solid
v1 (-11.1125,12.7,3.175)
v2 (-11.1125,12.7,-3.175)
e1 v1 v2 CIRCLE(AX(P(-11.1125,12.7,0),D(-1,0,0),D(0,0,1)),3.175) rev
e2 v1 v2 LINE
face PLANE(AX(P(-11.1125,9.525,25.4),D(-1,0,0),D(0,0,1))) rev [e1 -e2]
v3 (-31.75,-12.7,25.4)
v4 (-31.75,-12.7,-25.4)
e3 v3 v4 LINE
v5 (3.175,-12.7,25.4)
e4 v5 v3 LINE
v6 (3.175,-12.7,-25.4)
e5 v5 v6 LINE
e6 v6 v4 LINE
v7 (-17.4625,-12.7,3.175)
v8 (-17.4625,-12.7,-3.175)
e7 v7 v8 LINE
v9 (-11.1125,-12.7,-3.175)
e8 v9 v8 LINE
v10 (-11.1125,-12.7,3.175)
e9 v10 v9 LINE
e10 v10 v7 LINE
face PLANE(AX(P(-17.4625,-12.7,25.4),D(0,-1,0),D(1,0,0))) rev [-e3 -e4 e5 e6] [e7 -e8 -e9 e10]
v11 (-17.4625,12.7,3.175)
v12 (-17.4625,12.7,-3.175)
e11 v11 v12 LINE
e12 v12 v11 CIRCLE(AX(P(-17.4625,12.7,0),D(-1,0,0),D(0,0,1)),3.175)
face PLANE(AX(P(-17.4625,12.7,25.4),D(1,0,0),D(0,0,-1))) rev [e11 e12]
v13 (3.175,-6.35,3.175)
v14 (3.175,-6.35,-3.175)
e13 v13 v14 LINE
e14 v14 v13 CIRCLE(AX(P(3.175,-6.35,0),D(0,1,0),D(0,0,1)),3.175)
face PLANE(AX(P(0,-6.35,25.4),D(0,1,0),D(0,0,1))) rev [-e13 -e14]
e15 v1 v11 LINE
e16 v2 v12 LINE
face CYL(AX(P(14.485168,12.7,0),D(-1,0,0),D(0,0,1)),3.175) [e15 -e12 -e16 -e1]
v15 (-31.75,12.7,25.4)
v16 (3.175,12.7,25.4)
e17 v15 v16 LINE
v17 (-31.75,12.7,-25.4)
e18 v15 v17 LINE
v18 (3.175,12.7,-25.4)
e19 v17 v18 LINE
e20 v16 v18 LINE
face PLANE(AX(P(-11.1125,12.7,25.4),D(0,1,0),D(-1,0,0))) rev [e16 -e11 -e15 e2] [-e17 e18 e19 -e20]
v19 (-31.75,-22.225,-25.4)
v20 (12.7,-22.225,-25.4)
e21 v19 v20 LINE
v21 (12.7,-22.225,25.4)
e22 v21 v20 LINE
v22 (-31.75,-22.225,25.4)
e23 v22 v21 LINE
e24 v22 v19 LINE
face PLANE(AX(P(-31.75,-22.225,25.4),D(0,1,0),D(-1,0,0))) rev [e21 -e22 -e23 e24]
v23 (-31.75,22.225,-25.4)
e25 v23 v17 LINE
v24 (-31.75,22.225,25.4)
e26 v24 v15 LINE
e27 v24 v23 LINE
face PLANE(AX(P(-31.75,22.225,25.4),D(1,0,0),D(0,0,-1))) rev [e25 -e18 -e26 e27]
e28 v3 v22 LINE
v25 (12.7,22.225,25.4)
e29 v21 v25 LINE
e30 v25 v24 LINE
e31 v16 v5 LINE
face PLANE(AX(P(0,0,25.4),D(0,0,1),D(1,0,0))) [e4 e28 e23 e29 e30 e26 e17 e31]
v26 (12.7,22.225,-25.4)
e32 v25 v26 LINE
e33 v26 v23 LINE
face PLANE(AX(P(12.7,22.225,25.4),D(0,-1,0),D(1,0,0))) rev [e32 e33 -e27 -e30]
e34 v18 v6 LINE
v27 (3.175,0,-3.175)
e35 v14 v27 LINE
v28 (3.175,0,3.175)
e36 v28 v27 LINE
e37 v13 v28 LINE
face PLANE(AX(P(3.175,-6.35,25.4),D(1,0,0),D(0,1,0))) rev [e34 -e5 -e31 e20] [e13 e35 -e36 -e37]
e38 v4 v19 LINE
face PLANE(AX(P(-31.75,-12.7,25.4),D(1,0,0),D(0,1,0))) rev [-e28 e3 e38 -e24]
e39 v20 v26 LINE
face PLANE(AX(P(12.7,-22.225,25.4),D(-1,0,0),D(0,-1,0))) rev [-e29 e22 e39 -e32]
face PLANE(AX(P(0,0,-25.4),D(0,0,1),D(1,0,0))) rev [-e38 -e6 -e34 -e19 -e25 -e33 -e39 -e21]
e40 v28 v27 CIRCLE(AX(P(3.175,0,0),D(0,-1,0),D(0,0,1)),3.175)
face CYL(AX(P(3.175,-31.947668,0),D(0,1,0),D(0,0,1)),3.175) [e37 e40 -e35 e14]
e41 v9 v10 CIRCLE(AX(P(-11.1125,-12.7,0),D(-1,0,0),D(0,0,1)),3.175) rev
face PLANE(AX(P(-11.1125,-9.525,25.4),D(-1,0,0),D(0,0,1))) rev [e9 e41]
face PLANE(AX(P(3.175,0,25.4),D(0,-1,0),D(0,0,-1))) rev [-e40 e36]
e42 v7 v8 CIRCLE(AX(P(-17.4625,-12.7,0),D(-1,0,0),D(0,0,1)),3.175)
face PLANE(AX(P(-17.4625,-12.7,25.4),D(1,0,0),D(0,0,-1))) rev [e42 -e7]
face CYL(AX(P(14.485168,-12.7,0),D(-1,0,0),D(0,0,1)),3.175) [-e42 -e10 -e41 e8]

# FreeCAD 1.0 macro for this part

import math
import FreeCAD as App
import Part
import Sketcher

V = App.Vector
Q = App.Units.Quantity

doc = App.newDocument("Part")
body = doc.addObject("PartDesign::Body", "Body")

# Sketch on XY plane
sketch1 = body.newObject("Sketcher::SketchObject", "Sketch")
sketch1.AttachmentSupport = (doc.getObject("XY_Plane"), [""])
sketch1.MapMode = "FlatFace"
sketch1.addGeometry(Part.LineSegment(V(-31.75, 22.225, 0), V(-31.75, 12.7, 0)), False)
sketch1.addGeometry(Part.LineSegment(V(-31.75, 12.7, 0), V(-17.4625, 12.7, 0)), False)
sketch1.addGeometry(Part.LineSegment(V(-17.4625, 12.7, 0), V(-17.4625, 9.525, 0)), False)
sketch1.addGeometry(Part.LineSegment(V(-17.4625, 9.525, 0), V(-11.1125, 9.525, 0)), False)
sketch1.addGeometry(Part.LineSegment(V(-11.1125, 9.525, 0), V(-11.1125, 12.7, 0)), False)
sketch1.addGeometry(Part.LineSegment(V(-11.1125, 12.7, 0), V(3.175, 12.7, 0)), False)
sketch1.addGeometry(Part.LineSegment(V(3.175, 12.7, 0), V(3.175, 0, 0)), False)
sketch1.addGeometry(Part.LineSegment(V(3.175, 0, 0), V(0, 0, 0)), False)
sketch1.addGeometry(Part.LineSegment(V(0, 0, 0), V(0, -6.35, 0)), False)
sketch1.addGeometry(Part.LineSegment(V(0, -6.35, 0), V(3.175, -6.35, 0)), False)
sketch1.addGeometry(Part.LineSegment(V(3.175, -6.35, 0), V(3.175, -12.7, 0)), False)
sketch1.addGeometry(Part.LineSegment(V(3.175, -12.7, 0), V(-11.1125, -12.7, 0)), False)
sketch1.addGeometry(Part.LineSegment(V(-11.1125, -12.7, 0), V(-11.1125, -9.525, 0)), False)
sketch1.addGeometry(Part.LineSegment(V(-11.1125, -9.525, 0), V(-17.4625, -9.525, 0)), False)
sketch1.addGeometry(Part.LineSegment(V(-17.4625, -9.525, 0), V(-17.4625, -12.7, 0)), False)
sketch1.addGeometry(Part.LineSegment(V(-17.4625, -12.7, 0), V(-31.75, -12.7, 0)), False)
sketch1.addGeometry(Part.LineSegment(V(-31.75, -12.7, 0), V(-31.75, -22.225, 0)), False)
sketch1.addGeometry(Part.LineSegment(V(-31.75, -22.225, 0), V(12.7, -22.225, 0)), False)
sketch1.addGeometry(Part.LineSegment(V(12.7, -22.225, 0), V(12.7, 22.225, 0)), False)
sketch1.addGeometry(Part.LineSegment(V(12.7, 22.225, 0), V(-31.75, 22.225, 0)), False)
sketch1.addConstraint(Sketcher.Constraint("Coincident", 0, 2, 1, 1))
sketch1.addConstraint(Sketcher.Constraint("Coincident", 1, 2, 2, 1))
sketch1.addConstraint(Sketcher.Constraint("Coincident", 2, 2, 3, 1))
sketch1.addConstraint(Sketcher.Constraint("Coincident", 3, 2, 4, 1))
sketch1.addConstraint(Sketcher.Constraint("Coincident", 4, 2, 5, 1))
sketch1.addConstraint(Sketcher.Constraint("Coincident", 5, 2, 6, 1))
sketch1.addConstraint(Sketcher.Constraint("Coincident", 6, 2, 7, 1))
sketch1.addConstraint(Sketcher.Constraint("Coincident", 7, 2, 8, 1))
sketch1.addConstraint(Sketcher.Constraint("Coincident", 8, 2, 9, 1))
sketch1.addConstraint(Sketcher.Constraint("Coincident", 9, 2, 10, 1))
sketch1.addConstraint(Sketcher.Constraint("Coincident", 10, 2, 11, 1))
sketch1.addConstraint(Sketcher.Constraint("Coincident", 11, 2, 12, 1))
sketch1.addConstraint(Sketcher.Constraint("Coincident", 12, 2, 13, 1))
sketch1.addConstraint(Sketcher.Constraint("Coincident", 13, 2, 14, 1))
sketch1.addConstraint(Sketcher.Constraint("Coincident", 14, 2, 15, 1))
sketch1.addConstraint(Sketcher.Constraint("Coincident", 15, 2, 16, 1))
sketch1.addConstraint(Sketcher.Constraint("Coincident", 16, 2, 17, 1))
sketch1.addConstraint(Sketcher.Constraint("Coincident", 17, 2, 18, 1))
sketch1.addConstraint(Sketcher.Constraint("Coincident", 18, 2, 19, 1))
sketch1.addConstraint(Sketcher.Constraint("Coincident", 19, 2, 0, 1))
sketch1.addConstraint(Sketcher.Constraint("Vertical", 0))
sketch1.addConstraint(Sketcher.Constraint("Horizontal", 1))
sketch1.addConstraint(Sketcher.Constraint("Vertical", 2))
sketch1.addConstraint(Sketcher.Constraint("Horizontal", 3))
sketch1.addConstraint(Sketcher.Constraint("Vertical", 4))
sketch1.addConstraint(Sketcher.Constraint("Horizontal", 5))
sketch1.addConstraint(Sketcher.Constraint("Vertical", 6))
sketch1.addConstraint(Sketcher.Constraint("Horizontal", 7))
sketch1.addConstraint(Sketcher.Constraint("Vertical", 8))
sketch1.addConstraint(Sketcher.Constraint("Horizontal", 9))
sketch1.addConstraint(Sketcher.Constraint("Vertical", 10))
sketch1.addConstraint(Sketcher.Constraint("Horizontal", 11))
sketch1.addConstraint(Sketcher.Constraint("Vertical", 12))
sketch1.addConstraint(Sketcher.Constraint("Horizontal", 13))
sketch1.addConstraint(Sketcher.Constraint("Vertical", 14))
sketch1.addConstraint(Sketcher.Constraint("Horizontal", 15))
sketch1.addConstraint(Sketcher.Constraint("Vertical", 16))
sketch1.addConstraint(Sketcher.Constraint("Horizontal", 17))
sketch1.addConstraint(Sketcher.Constraint("Vertical", 18))
sketch1.addConstraint(Sketcher.Constraint("Horizontal", 19))
sketch1.addConstraint(Sketcher.Constraint("Coincident", 7, 2, -1, 1))
sketch1.addConstraint(Sketcher.Constraint("Symmetric", 5, 2, 10, 2, -1))
sketch1.addConstraint(Sketcher.Constraint("Symmetric", 3, 2, 12, 2, -1))
sketch1.addConstraint(Sketcher.Constraint("Symmetric", 1, 2, 14, 2, -1))
sketch1.addConstraint(Sketcher.Constraint("Symmetric", 16, 2, 19, 2, -1))
sketch1.addConstraint(Sketcher.Constraint("Horizontal", 1, 2, 4, 2))
sketch1.addConstraint(Sketcher.Constraint("Equal", 1, 5))
sketch1.addConstraint(Sketcher.Constraint("Equal", 9, 2))
sketch1.addConstraint(Sketcher.Constraint("Equal", 13, 8))
sketch1.addConstraint(Sketcher.Constraint("Equal", 8, 10))
sketch1.addConstraint(Sketcher.Constraint("Equal", 19, 18))
sketch1.addConstraint(Sketcher.Constraint("DistanceY", 6, 2, 6, 1, Q("0.5 in")))
sketch1.addConstraint(Sketcher.Constraint("DistanceX", 17, 1, 17, 2, Q("1.75 in")))
sketch1.addConstraint(Sketcher.Constraint("DistanceX", -1, 1, 17, 2, Q("0.5 in")))
sketch1.addConstraint(Sketcher.Constraint("DistanceY", 16, 2, 13, 2, Q("0.5 in")))
pad1 = body.newObject("PartDesign::Pad", "Pad")
pad1.Profile = sketch1
pad1.Length = Q("2 in")
pad1.Midplane = True

# Sketch on YZ plane
sketch2 = body.newObject("Sketcher::SketchObject", "Sketch001")
sketch2.AttachmentSupport = (doc.getObject("YZ_Plane"), [""])
sketch2.MapMode = "FlatFace"
sketch2.AttachmentOffset = App.Placement(V(0, 0, -0.6875 * 25.4), App.Rotation())
sketch2.addGeometry(Part.ArcOfCircle(Part.Circle(V(12.7, 0, 0), V(0, 0, 1), 3.175), math.radians(90), math.radians(180)), False)
sketch2.addGeometry(Part.LineSegment(V(9.525, 0, 0), V(9.525, 25.4, 0)), False)
sketch2.addGeometry(Part.LineSegment(V(9.525, 25.4, 0), V(12.7, 25.4, 0)), False)
sketch2.addGeometry(Part.LineSegment(V(12.7, 25.4, 0), V(12.7, 3.175, 0)), False)
sketch2.addGeometry(Part.LineSegment(V(12.7, -3.175, 0), V(12.7, -25.4, 0)), False)
sketch2.addGeometry(Part.LineSegment(V(12.7, -25.4, 0), V(9.525, -25.4, 0)), False)
sketch2.addGeometry(Part.LineSegment(V(9.525, -25.4, 0), V(9.525, 0, 0)), False)
sketch2.addGeometry(Part.ArcOfCircle(Part.Circle(V(12.7, 0, 0), V(0, 0, 1), 3.175), math.radians(-180), math.radians(-90)), False)
sketch2.addGeometry(Part.LineSegment(V(-9.525, 0, 0), V(-9.525, -25.4, 0)), False)
sketch2.addGeometry(Part.LineSegment(V(-9.525, -25.4, 0), V(-12.7, -25.4, 0)), False)
sketch2.addGeometry(Part.LineSegment(V(-12.7, -25.4, 0), V(-12.7, -3.175, 0)), False)
sketch2.addGeometry(Part.ArcOfCircle(Part.Circle(V(-12.7, 0, 0), V(0, 0, 1), 3.175), math.radians(-90), math.radians(0)), False)
sketch2.addGeometry(Part.LineSegment(V(-9.525, 25.4, 0), V(-9.525, 0, 0)), False)
sketch2.addGeometry(Part.ArcOfCircle(Part.Circle(V(-12.7, 0, 0), V(0, 0, 1), 3.175), math.radians(0), math.radians(90)), False)
sketch2.addGeometry(Part.LineSegment(V(-12.7, 3.175, 0), V(-12.7, 25.4, 0)), False)
sketch2.addGeometry(Part.LineSegment(V(-12.7, 25.4, 0), V(-9.525, 25.4, 0)), False)
sketch2.addConstraint(Sketcher.Constraint("Tangent", 0, 2, 1, 1))
sketch2.addConstraint(Sketcher.Constraint("Coincident", 1, 2, 2, 1))
sketch2.addConstraint(Sketcher.Constraint("Coincident", 2, 2, 3, 1))
sketch2.addConstraint(Sketcher.Constraint("Coincident", 3, 2, 0, 1))
sketch2.addConstraint(Sketcher.Constraint("Coincident", 4, 2, 5, 1))
sketch2.addConstraint(Sketcher.Constraint("Coincident", 5, 2, 6, 1))
sketch2.addConstraint(Sketcher.Constraint("Tangent", 6, 2, 7, 1))
sketch2.addConstraint(Sketcher.Constraint("Coincident", 7, 2, 4, 1))
sketch2.addConstraint(Sketcher.Constraint("Coincident", 8, 2, 9, 1))
sketch2.addConstraint(Sketcher.Constraint("Coincident", 9, 2, 10, 1))
sketch2.addConstraint(Sketcher.Constraint("Coincident", 10, 2, 11, 1))
sketch2.addConstraint(Sketcher.Constraint("Tangent", 11, 2, 8, 1))
sketch2.addConstraint(Sketcher.Constraint("Tangent", 12, 2, 13, 1))
sketch2.addConstraint(Sketcher.Constraint("Coincident", 13, 2, 14, 1))
sketch2.addConstraint(Sketcher.Constraint("Coincident", 14, 2, 15, 1))
sketch2.addConstraint(Sketcher.Constraint("Coincident", 15, 2, 12, 1))
sketch2.addConstraint(Sketcher.Constraint("Vertical", 1))
sketch2.addConstraint(Sketcher.Constraint("Horizontal", 2))
sketch2.addConstraint(Sketcher.Constraint("Vertical", 3))
sketch2.addConstraint(Sketcher.Constraint("Vertical", 4))
sketch2.addConstraint(Sketcher.Constraint("Horizontal", 5))
sketch2.addConstraint(Sketcher.Constraint("Vertical", 6))
sketch2.addConstraint(Sketcher.Constraint("Vertical", 8))
sketch2.addConstraint(Sketcher.Constraint("Horizontal", 9))
sketch2.addConstraint(Sketcher.Constraint("Vertical", 10))
sketch2.addConstraint(Sketcher.Constraint("Vertical", 12))
sketch2.addConstraint(Sketcher.Constraint("Vertical", 14))
sketch2.addConstraint(Sketcher.Constraint("Horizontal", 15))
sketch2.addConstraint(Sketcher.Constraint("Coincident", 7, 3, 0, 3))
sketch2.addConstraint(Sketcher.Constraint("Coincident", 13, 3, 11, 3))
sketch2.addConstraint(Sketcher.Constraint("Equal", 0, 7))
sketch2.addConstraint(Sketcher.Constraint("Equal", 7, 11))
sketch2.addConstraint(Sketcher.Constraint("Equal", 11, 13))
sketch2.addConstraint(Sketcher.Constraint("Symmetric", 0, 3, 11, 3, -1, 1))
sketch2.addConstraint(Sketcher.Constraint("Symmetric", 2, 2, 9, 2, -1, 1))
sketch2.addConstraint(Sketcher.Constraint("Symmetric", 4, 2, 14, 2, -1, 1))
sketch2.addConstraint(Sketcher.Constraint("Symmetric", 4, 2, 9, 2, -2))
sketch2.addConstraint(Sketcher.Constraint("PointOnObject", 0, 3, -1))
sketch2.addConstraint(Sketcher.Constraint("Vertical", 7, 3, 2, 2))
sketch2.addConstraint(Sketcher.Constraint("DistanceY", 1, 1, 1, 2, Q("1 in")))
sketch2.addConstraint(Sketcher.Constraint("Radius", 0, Q("0.125 in")))
sketch2.addConstraint(Sketcher.Constraint("DistanceX", 11, 3, 0, 3, Q("1 in")))
pocket1 = body.newObject("PartDesign::Pocket", "Pocket")
pocket1.Profile = sketch2
pocket1.Length = Q("0.25 in")
pocket1.Reversed = True

# Sketch on XZ plane
sketch3 = body.newObject("Sketcher::SketchObject", "Sketch002")
sketch3.AttachmentSupport = (doc.getObject("XZ_Plane"), [""])
sketch3.MapMode = "FlatFace"
sketch3.addGeometry(Part.LineSegment(V(0, 0, 0), V(0, 25.4, 0)), False)
sketch3.addGeometry(Part.LineSegment(V(0, 25.4, 0), V(3.175, 25.4, 0)), False)
sketch3.addGeometry(Part.LineSegment(V(3.175, 25.4, 0), V(3.175, 3.175, 0)), False)
sketch3.addGeometry(Part.ArcOfCircle(Part.Circle(V(3.175, 0, 0), V(0, 0, 1), 3.175), math.radians(90), math.radians(180)), False)
sketch3.addConstraint(Sketcher.Constraint("Coincident", 0, 2, 1, 1))
sketch3.addConstraint(Sketcher.Constraint("Coincident", 1, 2, 2, 1))
sketch3.addConstraint(Sketcher.Constraint("Coincident", 2, 2, 3, 1))
sketch3.addConstraint(Sketcher.Constraint("Tangent", 3, 2, 0, 1))
sketch3.addConstraint(Sketcher.Constraint("Vertical", 0))
sketch3.addConstraint(Sketcher.Constraint("Horizontal", 1))
sketch3.addConstraint(Sketcher.Constraint("Vertical", 2))
sketch3.addConstraint(Sketcher.Constraint("Coincident", 3, 2, -1, 1))
sketch3.addConstraint(Sketcher.Constraint("Vertical", 3, 3, 1, 2))
sketch3.addConstraint(Sketcher.Constraint("DistanceY", 0, 1, 0, 2, Q("1 in")))
sketch3.addConstraint(Sketcher.Constraint("Radius", 3, Q("0.125 in")))
pocket2 = body.newObject("PartDesign::Pocket", "Pocket001")
pocket2.Profile = sketch3
pocket2.Length = Q("0.25 in")
pocket2.Reversed = True
doc.recompute()

mirrored = body.newObject("PartDesign::Mirrored", "Mirrored")
mirrored.Originals = [pocket2]
mirrored.MirrorPlane = (doc.getObject("XY_Plane"), [""])
body.Tip = mirrored

doc.recompute()
